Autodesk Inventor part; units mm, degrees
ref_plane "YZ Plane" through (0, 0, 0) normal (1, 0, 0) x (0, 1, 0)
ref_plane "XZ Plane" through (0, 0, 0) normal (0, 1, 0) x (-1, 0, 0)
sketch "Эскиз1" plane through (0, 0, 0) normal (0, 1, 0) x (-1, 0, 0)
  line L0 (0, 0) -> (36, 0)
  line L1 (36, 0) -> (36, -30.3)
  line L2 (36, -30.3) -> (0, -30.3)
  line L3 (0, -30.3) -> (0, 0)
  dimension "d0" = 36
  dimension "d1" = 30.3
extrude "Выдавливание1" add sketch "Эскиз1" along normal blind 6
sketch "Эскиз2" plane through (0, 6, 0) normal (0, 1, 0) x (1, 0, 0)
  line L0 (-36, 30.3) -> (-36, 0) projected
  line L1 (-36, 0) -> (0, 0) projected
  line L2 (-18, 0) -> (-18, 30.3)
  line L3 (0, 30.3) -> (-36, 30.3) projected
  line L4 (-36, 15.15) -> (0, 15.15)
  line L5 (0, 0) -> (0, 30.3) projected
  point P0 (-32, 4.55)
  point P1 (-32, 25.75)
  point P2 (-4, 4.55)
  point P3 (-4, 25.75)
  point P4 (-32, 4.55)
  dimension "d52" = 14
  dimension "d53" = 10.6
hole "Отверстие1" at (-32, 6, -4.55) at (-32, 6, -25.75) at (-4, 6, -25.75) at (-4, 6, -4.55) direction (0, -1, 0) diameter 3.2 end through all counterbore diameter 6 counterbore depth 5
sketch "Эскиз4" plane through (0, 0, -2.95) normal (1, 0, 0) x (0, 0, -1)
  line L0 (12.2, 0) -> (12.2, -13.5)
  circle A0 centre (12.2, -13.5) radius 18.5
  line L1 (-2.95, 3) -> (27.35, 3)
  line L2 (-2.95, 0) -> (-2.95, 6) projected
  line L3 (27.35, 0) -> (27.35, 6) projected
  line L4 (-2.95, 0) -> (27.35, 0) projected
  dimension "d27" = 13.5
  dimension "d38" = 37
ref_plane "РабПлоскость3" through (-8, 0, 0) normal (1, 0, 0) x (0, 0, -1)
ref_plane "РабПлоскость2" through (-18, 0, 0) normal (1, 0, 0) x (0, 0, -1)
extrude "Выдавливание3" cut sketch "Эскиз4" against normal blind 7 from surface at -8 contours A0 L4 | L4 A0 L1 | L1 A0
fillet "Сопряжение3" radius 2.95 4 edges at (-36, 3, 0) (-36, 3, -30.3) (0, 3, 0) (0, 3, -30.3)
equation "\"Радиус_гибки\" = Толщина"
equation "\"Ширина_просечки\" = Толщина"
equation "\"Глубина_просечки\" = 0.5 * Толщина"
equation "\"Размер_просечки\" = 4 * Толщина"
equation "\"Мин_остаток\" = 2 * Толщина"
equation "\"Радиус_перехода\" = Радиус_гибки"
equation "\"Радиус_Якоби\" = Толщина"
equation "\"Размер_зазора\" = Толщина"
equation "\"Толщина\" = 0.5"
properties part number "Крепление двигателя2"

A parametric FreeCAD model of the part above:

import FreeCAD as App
import Part
import Sketcher
from FreeCAD import Vector


def edges_at(feature, points):
    """Names of the edges that pass closest to the given points."""
    edges = feature.Shape.Edges
    near = lambda p: min(range(len(edges)), key=lambda i: edges[i].distToShape(Part.Vertex(*p))[0])
    return sorted({f"Edge{near(p) + 1}" for p in points})

doc = App.newDocument("Part")
body = doc.addObject("PartDesign::Body", "Body")

# Sketch on XZ plane
sketch1 = doc.addObject("Sketcher::SketchObject", "Sketch")
body.addObject(sketch1)
sketch1.AttachmentSupport = (doc.XZ_Plane, [""])
sketch1.MapMode = "FlatFace"
sketch1.addGeometry([
    Part.LineSegment(Vector(-36, 0, 0), Vector(0, 0, 0)),
    Part.LineSegment(Vector(0, 0, 0), Vector(0, -30, 0)),
    Part.LineSegment(Vector(0, -30, 0), Vector(-36, -30, 0)),
    Part.LineSegment(Vector(-36, -30, 0), Vector(-36, 0, 0)),
], False)
sketch1.addConstraint([
    Sketcher.Constraint("Coincident", 0, 2, 1, 1),
    Sketcher.Constraint("Coincident", 1, 2, 2, 1),
    Sketcher.Constraint("Coincident", 2, 2, 3, 1),
    Sketcher.Constraint("Coincident", 3, 2, 0, 1),
    Sketcher.Constraint("Horizontal", 0),
    Sketcher.Constraint("Vertical", 1),
    Sketcher.Constraint("Horizontal", 2),
    Sketcher.Constraint("Vertical", 3),
    Sketcher.Constraint("Coincident", 0, 2, -1, 1),
    Sketcher.Constraint("DistanceX", 0, 1, 0, 2, 36.0),
    Sketcher.Constraint("DistanceY", 1, 2, 1, 1, 30.3),
])
pad1 = doc.addObject("PartDesign::Pad", "Pad")
body.addObject(pad1)
pad1.Profile = sketch1
pad1.Length = 6
pad1.Reversed = True

# Sketch on XZ plane
sketch2 = doc.addObject("Sketcher::SketchObject", "Sketch001")
body.addObject(sketch2)
sketch2.AttachmentSupport = (doc.XZ_Plane, [""])
sketch2.MapMode = "FlatFace"
sketch2.AttachmentOffset = App.Placement(Vector(0, 0, -6), App.Rotation())
sketch2.addGeometry([
    Part.Circle(Vector(-32, -4.5, 0), Vector(0, 0, 1), 1.6),
    Part.Circle(Vector(-32, -25.8, 0), Vector(0, 0, 1), 1.6),
    Part.Circle(Vector(-4, -25.8, 0), Vector(0, 0, 1), 1.6),
    Part.Circle(Vector(-4, -4.5, 0), Vector(0, 0, 1), 1.6),
], False)
sketch2.addConstraint([
    Sketcher.Constraint("Equal", 0, 1),
    Sketcher.Constraint("Equal", 1, 2),
    Sketcher.Constraint("Equal", 2, 3),
    Sketcher.Constraint("Horizontal", 1, 3, 2, 3),
    Sketcher.Constraint("Horizontal", 0, 3, 3, 3),
    Sketcher.Constraint("Vertical", 0, 3, 1, 3),
    Sketcher.Constraint("Vertical", 2, 3, 3, 3),
    Sketcher.Constraint("Diameter", 0, 3.2),
    Sketcher.Constraint("DistanceX", 0, 3, -1, 1, 32.0),
    Sketcher.Constraint("DistanceX", 2, 3, -1, 1, 4.0),
    Sketcher.Constraint("DistanceY", 1, 3, 0, 3, 21.2),
    Sketcher.Constraint("DistanceY", 0, 3, -1, 1, 4.55),
])
doc.recompute()
hole = doc.addObject("PartDesign::Hole", "Hole")
body.addObject(hole)
hole.Profile = sketch2
hole.ThreadType = "None"
hole.Diameter = 3.2
hole.DepthType = "ThroughAll"
hole.HoleCutType = "Counterbore"
hole.HoleCutDiameter = 6
hole.HoleCutDepth = 5
hole.Reversed = True

# Sketch on YZ plane
sketch3 = doc.addObject("Sketcher::SketchObject", "Sketch002")
body.addObject(sketch3)
sketch3.AttachmentSupport = (doc.YZ_Plane, [""])
sketch3.MapMode = "FlatFace"
sketch3.AttachmentOffset = App.Placement(Vector(0, 0, -8), App.Rotation())
sketch3.addGeometry(Part.Circle(Vector(-14, -15, 0), Vector(0, 0, 1), 18), False)
sketch3.addConstraint([
    Sketcher.Constraint("Diameter", 0, 37.0),
    Sketcher.Constraint("DistanceX", 0, 3, -1, 1, 13.5),
    Sketcher.Constraint("DistanceY", 0, 3, -1, 1, 15.15),
])
pocket1 = doc.addObject("PartDesign::Pocket", "Pocket")
body.addObject(pocket1)
pocket1.Profile = sketch3
pocket1.Length = 7
doc.recompute()

fillet = doc.addObject("PartDesign::Fillet", "Fillet")
body.addObject(fillet)
fillet.Base = (pocket1, edges_at(pocket1, [
    (-36, 3, 0),
    (-36, 3, -30.3),
    (0, 3, 0),
    (0, 3, -30.3),
]))
fillet.Radius = 2.95

doc.recompute()
